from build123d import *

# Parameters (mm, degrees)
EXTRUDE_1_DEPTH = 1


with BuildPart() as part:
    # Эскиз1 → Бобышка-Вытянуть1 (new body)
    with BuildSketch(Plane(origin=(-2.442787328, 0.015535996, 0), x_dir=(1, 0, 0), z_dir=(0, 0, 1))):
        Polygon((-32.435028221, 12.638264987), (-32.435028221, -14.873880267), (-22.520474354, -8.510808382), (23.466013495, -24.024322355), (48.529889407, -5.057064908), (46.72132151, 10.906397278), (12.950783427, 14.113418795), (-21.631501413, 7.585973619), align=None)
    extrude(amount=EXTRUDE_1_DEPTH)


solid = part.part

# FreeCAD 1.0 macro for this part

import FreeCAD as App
import Part
import Sketcher

V = App.Vector
Q = App.Units.Quantity


def add_polygon(sketch, points):
    """Adds a closed chain of lines whose ends are joined by coincident constraints."""
    first, n = sketch.GeometryCount, len(points)
    for a, b in zip(points, points[1:] + points[:1]):
        sketch.addGeometry(Part.LineSegment(App.Vector(*a, 0), App.Vector(*b, 0)), False)
    for i in range(n):
        sketch.addConstraint(Sketcher.Constraint("Coincident", first + i, 2, first + (i + 1) % n, 1))

doc = App.newDocument("Part")
body = doc.addObject("PartDesign::Body", "Body")

sketch1 = body.newObject("Sketcher::SketchObject", "Sketch")
sketch1.AttachmentSupport = (doc.getObject("XY_Plane"), [""])
sketch1.MapMode = "FlatFace"
add_polygon(sketch1, [(-35, 13), (-35, -15), (-25, -8), (21, -24), (46, -5), (44, 11), (11, 14), (-24, 8)])
sketch1.addConstraint(Sketcher.Constraint("Vertical", 0))
sketch1.addConstraint(Sketcher.Constraint("DistanceY", -1, 1, 7, 2, Q("12.653801 mm")))
sketch1.addConstraint(Sketcher.Constraint("DistanceY", 0, 2, 5, 2, Q("28.987299 mm")))
sketch1.addConstraint(Sketcher.Constraint("Distance", 7, Q("11.926518 mm")))
sketch1.addConstraint(Sketcher.Constraint("DistanceY", 0, 2, 0, 1, Q("27.512145 mm")))
sketch1.addConstraint(Sketcher.Constraint("DistanceX", 1, 2, -1, 1, Q("24.963262 mm")))
sketch1.addConstraint(Sketcher.Constraint("DistanceY", 3, 2, -1, 1, Q("5.041529 mm")))
sketch1.addConstraint(Sketcher.Constraint("DistanceX", 6, 2, -1, 1, Q("24.074289 mm")))
sketch1.addConstraint(Sketcher.Constraint("DistanceY", -1, 1, 6, 2, Q("7.60151 mm")))
sketch1.addConstraint(Sketcher.Constraint("DistanceY", 0, 2, 1, 2, Q("6.363072 mm")))
sketch1.addConstraint(Sketcher.Constraint("DistanceX", 0, 2, 2, 2, Q("55.901042 mm")))
sketch1.addConstraint(Sketcher.Constraint("DistanceX", 2, 2, 4, 2, Q("23.255308 mm")))
sketch1.addConstraint(Sketcher.Constraint("DistanceY", 2, 2, 4, 2, Q("34.93072 mm")))
sketch1.addConstraint(Sketcher.Constraint("DistanceX", 5, 2, 4, 2, Q("33.770538 mm")))
sketch1.addConstraint(Sketcher.Constraint("DistanceY", 4, 2, 5, 2, Q("3.207022 mm")))
sketch1.addConstraint(Sketcher.Constraint("Distance", 3, Q("31.431747 mm")))
pad1 = body.newObject("PartDesign::Pad", "Pad")
pad1.Profile = sketch1
pad1.Length = 1

doc.recompute()
